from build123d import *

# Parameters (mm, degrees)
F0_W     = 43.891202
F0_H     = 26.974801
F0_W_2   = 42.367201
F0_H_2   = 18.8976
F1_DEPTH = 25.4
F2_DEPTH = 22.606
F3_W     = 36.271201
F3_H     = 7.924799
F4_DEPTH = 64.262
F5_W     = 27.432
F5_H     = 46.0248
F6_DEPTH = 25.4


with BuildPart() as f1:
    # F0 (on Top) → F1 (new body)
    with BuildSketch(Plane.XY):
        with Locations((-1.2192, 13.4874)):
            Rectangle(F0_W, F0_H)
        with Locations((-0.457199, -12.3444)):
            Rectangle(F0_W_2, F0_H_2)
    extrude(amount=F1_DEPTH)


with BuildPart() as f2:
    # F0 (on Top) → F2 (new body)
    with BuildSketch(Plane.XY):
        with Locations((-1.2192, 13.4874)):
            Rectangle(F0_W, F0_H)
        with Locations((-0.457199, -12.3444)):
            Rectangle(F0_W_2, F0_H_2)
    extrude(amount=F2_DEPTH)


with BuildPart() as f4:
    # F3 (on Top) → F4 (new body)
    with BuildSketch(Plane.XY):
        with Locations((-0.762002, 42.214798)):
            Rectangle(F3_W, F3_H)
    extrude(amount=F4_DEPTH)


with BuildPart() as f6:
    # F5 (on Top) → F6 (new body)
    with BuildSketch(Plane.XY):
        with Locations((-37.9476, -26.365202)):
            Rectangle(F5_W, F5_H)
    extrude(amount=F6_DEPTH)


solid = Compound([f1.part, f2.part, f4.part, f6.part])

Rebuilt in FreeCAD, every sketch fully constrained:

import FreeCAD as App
import Part
import Sketcher

V = App.Vector
Q = App.Units.Quantity

doc = App.newDocument("Part")
body = doc.addObject("PartDesign::Body", "Body")
body.AllowCompound = True

# Sketch on XY plane
sketch1 = doc.addObject("Sketcher::SketchObject", "Sketch")
body.addObject(sketch1)
sketch1.AttachmentSupport = (doc.XY_Plane, [""])
sketch1.MapMode = "FlatFace"
sketch1.addGeometry(Part.LineSegment(V(-23.164801, 26.974801, 0), V(-23.164801, 0, 0)), False)
sketch1.addGeometry(Part.LineSegment(V(-23.164801, 0, 0), V(20.726401, 0, 0)), False)
sketch1.addGeometry(Part.LineSegment(V(20.726401, 0, 0), V(20.726401, 26.974801, 0)), False)
sketch1.addGeometry(Part.LineSegment(V(20.726401, 26.974801, 0), V(-23.164801, 26.974801, 0)), False)
sketch1.addGeometry(Part.LineSegment(V(-21.640799, -2.8956, 0), V(-21.640799, -21.7932, 0)), False)
sketch1.addGeometry(Part.LineSegment(V(-21.640799, -21.7932, 0), V(20.726402, -21.7932, 0)), False)
sketch1.addGeometry(Part.LineSegment(V(20.726402, -21.7932, 0), V(20.726402, -2.8956, 0)), False)
sketch1.addGeometry(Part.LineSegment(V(20.726402, -2.8956, 0), V(-21.640799, -2.8956, 0)), False)
sketch1.addConstraint(Sketcher.Constraint("Coincident", 0, 2, 1, 1))
sketch1.addConstraint(Sketcher.Constraint("Coincident", 1, 2, 2, 1))
sketch1.addConstraint(Sketcher.Constraint("Coincident", 2, 2, 3, 1))
sketch1.addConstraint(Sketcher.Constraint("Coincident", 3, 2, 0, 1))
sketch1.addConstraint(Sketcher.Constraint("Coincident", 4, 2, 5, 1))
sketch1.addConstraint(Sketcher.Constraint("Coincident", 5, 2, 6, 1))
sketch1.addConstraint(Sketcher.Constraint("Coincident", 6, 2, 7, 1))
sketch1.addConstraint(Sketcher.Constraint("Coincident", 7, 2, 4, 1))
sketch1.addConstraint(Sketcher.Constraint("Vertical", 0))
sketch1.addConstraint(Sketcher.Constraint("Horizontal", 1))
sketch1.addConstraint(Sketcher.Constraint("Vertical", 2))
sketch1.addConstraint(Sketcher.Constraint("Horizontal", 3))
sketch1.addConstraint(Sketcher.Constraint("Vertical", 4))
sketch1.addConstraint(Sketcher.Constraint("Horizontal", 5))
sketch1.addConstraint(Sketcher.Constraint("Vertical", 6))
sketch1.addConstraint(Sketcher.Constraint("Horizontal", 7))
sketch1.addConstraint(Sketcher.Constraint("PointOnObject", 0, 2, -1))
sketch1.addConstraint(Sketcher.Constraint("Vertical", 2, 2, 5, 2))
sketch1.addConstraint(Sketcher.Constraint("DistanceX", 1, 1, 1, 2, Q("1.7280001 in")))
sketch1.addConstraint(Sketcher.Constraint("DistanceX", 5, 1, 5, 2, Q("1.668 in")))
sketch1.addConstraint(Sketcher.Constraint("DistanceY", 0, 2, 0, 1, Q("1.062 in")))
sketch1.addConstraint(Sketcher.Constraint("DistanceY", 4, 2, 4, 1, Q("0.744 in")))
sketch1.addConstraint(Sketcher.Constraint("DistanceY", 4, 2, 3, 2, Q("1.92 in")))
sketch1.addConstraint(Sketcher.Constraint("DistanceX", 0, 2, -1, 1, Q("0.912 in")))
pad1 = doc.addObject("PartDesign::Pad", "Pad")
body.addObject(pad1)
pad1.Profile = sketch1
pad1.Length = Q("1 in")
body2 = doc.addObject("PartDesign::Body", "Body001")
body2.AllowCompound = True

# Sketch on XY plane
sketch2 = doc.addObject("Sketcher::SketchObject", "Sketch001")
body2.addObject(sketch2)
sketch2.AttachmentSupport = (doc.getObject("XY_Plane001"), [""])
sketch2.MapMode = "FlatFace"
sketch2.addGeometry(Part.LineSegment(V(-23.164801, 26.974801, 0), V(-23.164801, 0, 0)), False)
sketch2.addGeometry(Part.LineSegment(V(-23.164801, 0, 0), V(20.726401, 0, 0)), False)
sketch2.addGeometry(Part.LineSegment(V(20.726401, 0, 0), V(20.726401, 26.974801, 0)), False)
sketch2.addGeometry(Part.LineSegment(V(20.726401, 26.974801, 0), V(-23.164801, 26.974801, 0)), False)
sketch2.addGeometry(Part.LineSegment(V(-21.640799, -2.8956, 0), V(-21.640799, -21.7932, 0)), False)
sketch2.addGeometry(Part.LineSegment(V(-21.640799, -21.7932, 0), V(20.726402, -21.7932, 0)), False)
sketch2.addGeometry(Part.LineSegment(V(20.726402, -21.7932, 0), V(20.726402, -2.8956, 0)), False)
sketch2.addGeometry(Part.LineSegment(V(20.726402, -2.8956, 0), V(-21.640799, -2.8956, 0)), False)
sketch2.addConstraint(Sketcher.Constraint("Coincident", 0, 2, 1, 1))
sketch2.addConstraint(Sketcher.Constraint("Coincident", 1, 2, 2, 1))
sketch2.addConstraint(Sketcher.Constraint("Coincident", 2, 2, 3, 1))
sketch2.addConstraint(Sketcher.Constraint("Coincident", 3, 2, 0, 1))
sketch2.addConstraint(Sketcher.Constraint("Coincident", 4, 2, 5, 1))
sketch2.addConstraint(Sketcher.Constraint("Coincident", 5, 2, 6, 1))
sketch2.addConstraint(Sketcher.Constraint("Coincident", 6, 2, 7, 1))
sketch2.addConstraint(Sketcher.Constraint("Coincident", 7, 2, 4, 1))
sketch2.addConstraint(Sketcher.Constraint("Vertical", 0))
sketch2.addConstraint(Sketcher.Constraint("Horizontal", 1))
sketch2.addConstraint(Sketcher.Constraint("Vertical", 2))
sketch2.addConstraint(Sketcher.Constraint("Horizontal", 3))
sketch2.addConstraint(Sketcher.Constraint("Vertical", 4))
sketch2.addConstraint(Sketcher.Constraint("Horizontal", 5))
sketch2.addConstraint(Sketcher.Constraint("Vertical", 6))
sketch2.addConstraint(Sketcher.Constraint("Horizontal", 7))
sketch2.addConstraint(Sketcher.Constraint("PointOnObject", 0, 2, -1))
sketch2.addConstraint(Sketcher.Constraint("Vertical", 2, 2, 5, 2))
sketch2.addConstraint(Sketcher.Constraint("DistanceX", 1, 1, 1, 2, Q("1.7280001 in")))
sketch2.addConstraint(Sketcher.Constraint("DistanceX", 5, 1, 5, 2, Q("1.668 in")))
sketch2.addConstraint(Sketcher.Constraint("DistanceY", 0, 2, 0, 1, Q("1.062 in")))
sketch2.addConstraint(Sketcher.Constraint("DistanceY", 4, 2, 4, 1, Q("0.744 in")))
sketch2.addConstraint(Sketcher.Constraint("DistanceY", 4, 2, 3, 2, Q("1.92 in")))
sketch2.addConstraint(Sketcher.Constraint("DistanceX", 0, 2, -1, 1, Q("0.912 in")))
pad2 = doc.addObject("PartDesign::Pad", "Pad001")
body2.addObject(pad2)
pad2.Profile = sketch2
pad2.Length = Q("0.89 in")
body3 = doc.addObject("PartDesign::Body", "Body002")

# Sketch on XY plane
sketch3 = doc.addObject("Sketcher::SketchObject", "Sketch002")
body3.addObject(sketch3)
sketch3.AttachmentSupport = (doc.getObject("XY_Plane002"), [""])
sketch3.MapMode = "FlatFace"
sketch3.addGeometry(Part.LineSegment(V(-18.897603, 46.177197, 0), V(-18.897603, 38.252398, 0)), False)
sketch3.addGeometry(Part.LineSegment(V(-18.897603, 38.252398, 0), V(17.373598, 38.252398, 0)), False)
sketch3.addGeometry(Part.LineSegment(V(17.373598, 38.252398, 0), V(17.373598, 46.177197, 0)), False)
sketch3.addGeometry(Part.LineSegment(V(17.373598, 46.177197, 0), V(-18.897603, 46.177197, 0)), False)
sketch3.addConstraint(Sketcher.Constraint("Coincident", 0, 2, 1, 1))
sketch3.addConstraint(Sketcher.Constraint("Coincident", 1, 2, 2, 1))
sketch3.addConstraint(Sketcher.Constraint("Coincident", 2, 2, 3, 1))
sketch3.addConstraint(Sketcher.Constraint("Coincident", 3, 2, 0, 1))
sketch3.addConstraint(Sketcher.Constraint("Vertical", 0))
sketch3.addConstraint(Sketcher.Constraint("Horizontal", 1))
sketch3.addConstraint(Sketcher.Constraint("Vertical", 2))
sketch3.addConstraint(Sketcher.Constraint("Horizontal", 3))
sketch3.addConstraint(Sketcher.Constraint("DistanceX", 1, 1, 1, 2, Q("1.428 in")))
sketch3.addConstraint(Sketcher.Constraint("DistanceY", 0, 2, 0, 1, Q("0.312 in")))
sketch3.addConstraint(Sketcher.Constraint("DistanceX", 0, 2, -1, 1, Q("0.7440001 in")))
sketch3.addConstraint(Sketcher.Constraint("DistanceY", -1, 1, 0, 2, Q("1.5059999 in")))
pad3 = doc.addObject("PartDesign::Pad", "Pad002")
body3.addObject(pad3)
pad3.Profile = sketch3
pad3.Length = Q("2.53 in")
body4 = doc.addObject("PartDesign::Body", "Body003")

# Sketch on XY plane
sketch4 = doc.addObject("Sketcher::SketchObject", "Sketch003")
body4.addObject(sketch4)
sketch4.AttachmentSupport = (doc.getObject("XY_Plane003"), [""])
sketch4.MapMode = "FlatFace"
sketch4.addGeometry(Part.LineSegment(V(-51.6636, -3.352802, 0), V(-51.6636, -49.377602, 0)), False)
sketch4.addGeometry(Part.LineSegment(V(-51.6636, -49.377602, 0), V(-24.2316, -49.377602, 0)), False)
sketch4.addGeometry(Part.LineSegment(V(-24.2316, -49.377602, 0), V(-24.2316, -3.352802, 0)), False)
sketch4.addGeometry(Part.LineSegment(V(-24.2316, -3.352802, 0), V(-51.6636, -3.352802, 0)), False)
sketch4.addConstraint(Sketcher.Constraint("Coincident", 0, 2, 1, 1))
sketch4.addConstraint(Sketcher.Constraint("Coincident", 1, 2, 2, 1))
sketch4.addConstraint(Sketcher.Constraint("Coincident", 2, 2, 3, 1))
sketch4.addConstraint(Sketcher.Constraint("Coincident", 3, 2, 0, 1))
sketch4.addConstraint(Sketcher.Constraint("Vertical", 0))
sketch4.addConstraint(Sketcher.Constraint("Horizontal", 1))
sketch4.addConstraint(Sketcher.Constraint("Vertical", 2))
sketch4.addConstraint(Sketcher.Constraint("Horizontal", 3))
sketch4.addConstraint(Sketcher.Constraint("DistanceX", 1, 1, 1, 2, Q("1.08 in")))
sketch4.addConstraint(Sketcher.Constraint("DistanceY", 0, 2, 0, 1, Q("1.812 in")))
sketch4.addConstraint(Sketcher.Constraint("DistanceX", 0, 2, -1, 1, Q("2.034 in")))
sketch4.addConstraint(Sketcher.Constraint("DistanceY", 0, 2, -1, 1, Q("1.9440001 in")))
pad4 = doc.addObject("PartDesign::Pad", "Pad003")
body4.addObject(pad4)
pad4.Profile = sketch4
pad4.Length = Q("1 in")

doc.recompute()
